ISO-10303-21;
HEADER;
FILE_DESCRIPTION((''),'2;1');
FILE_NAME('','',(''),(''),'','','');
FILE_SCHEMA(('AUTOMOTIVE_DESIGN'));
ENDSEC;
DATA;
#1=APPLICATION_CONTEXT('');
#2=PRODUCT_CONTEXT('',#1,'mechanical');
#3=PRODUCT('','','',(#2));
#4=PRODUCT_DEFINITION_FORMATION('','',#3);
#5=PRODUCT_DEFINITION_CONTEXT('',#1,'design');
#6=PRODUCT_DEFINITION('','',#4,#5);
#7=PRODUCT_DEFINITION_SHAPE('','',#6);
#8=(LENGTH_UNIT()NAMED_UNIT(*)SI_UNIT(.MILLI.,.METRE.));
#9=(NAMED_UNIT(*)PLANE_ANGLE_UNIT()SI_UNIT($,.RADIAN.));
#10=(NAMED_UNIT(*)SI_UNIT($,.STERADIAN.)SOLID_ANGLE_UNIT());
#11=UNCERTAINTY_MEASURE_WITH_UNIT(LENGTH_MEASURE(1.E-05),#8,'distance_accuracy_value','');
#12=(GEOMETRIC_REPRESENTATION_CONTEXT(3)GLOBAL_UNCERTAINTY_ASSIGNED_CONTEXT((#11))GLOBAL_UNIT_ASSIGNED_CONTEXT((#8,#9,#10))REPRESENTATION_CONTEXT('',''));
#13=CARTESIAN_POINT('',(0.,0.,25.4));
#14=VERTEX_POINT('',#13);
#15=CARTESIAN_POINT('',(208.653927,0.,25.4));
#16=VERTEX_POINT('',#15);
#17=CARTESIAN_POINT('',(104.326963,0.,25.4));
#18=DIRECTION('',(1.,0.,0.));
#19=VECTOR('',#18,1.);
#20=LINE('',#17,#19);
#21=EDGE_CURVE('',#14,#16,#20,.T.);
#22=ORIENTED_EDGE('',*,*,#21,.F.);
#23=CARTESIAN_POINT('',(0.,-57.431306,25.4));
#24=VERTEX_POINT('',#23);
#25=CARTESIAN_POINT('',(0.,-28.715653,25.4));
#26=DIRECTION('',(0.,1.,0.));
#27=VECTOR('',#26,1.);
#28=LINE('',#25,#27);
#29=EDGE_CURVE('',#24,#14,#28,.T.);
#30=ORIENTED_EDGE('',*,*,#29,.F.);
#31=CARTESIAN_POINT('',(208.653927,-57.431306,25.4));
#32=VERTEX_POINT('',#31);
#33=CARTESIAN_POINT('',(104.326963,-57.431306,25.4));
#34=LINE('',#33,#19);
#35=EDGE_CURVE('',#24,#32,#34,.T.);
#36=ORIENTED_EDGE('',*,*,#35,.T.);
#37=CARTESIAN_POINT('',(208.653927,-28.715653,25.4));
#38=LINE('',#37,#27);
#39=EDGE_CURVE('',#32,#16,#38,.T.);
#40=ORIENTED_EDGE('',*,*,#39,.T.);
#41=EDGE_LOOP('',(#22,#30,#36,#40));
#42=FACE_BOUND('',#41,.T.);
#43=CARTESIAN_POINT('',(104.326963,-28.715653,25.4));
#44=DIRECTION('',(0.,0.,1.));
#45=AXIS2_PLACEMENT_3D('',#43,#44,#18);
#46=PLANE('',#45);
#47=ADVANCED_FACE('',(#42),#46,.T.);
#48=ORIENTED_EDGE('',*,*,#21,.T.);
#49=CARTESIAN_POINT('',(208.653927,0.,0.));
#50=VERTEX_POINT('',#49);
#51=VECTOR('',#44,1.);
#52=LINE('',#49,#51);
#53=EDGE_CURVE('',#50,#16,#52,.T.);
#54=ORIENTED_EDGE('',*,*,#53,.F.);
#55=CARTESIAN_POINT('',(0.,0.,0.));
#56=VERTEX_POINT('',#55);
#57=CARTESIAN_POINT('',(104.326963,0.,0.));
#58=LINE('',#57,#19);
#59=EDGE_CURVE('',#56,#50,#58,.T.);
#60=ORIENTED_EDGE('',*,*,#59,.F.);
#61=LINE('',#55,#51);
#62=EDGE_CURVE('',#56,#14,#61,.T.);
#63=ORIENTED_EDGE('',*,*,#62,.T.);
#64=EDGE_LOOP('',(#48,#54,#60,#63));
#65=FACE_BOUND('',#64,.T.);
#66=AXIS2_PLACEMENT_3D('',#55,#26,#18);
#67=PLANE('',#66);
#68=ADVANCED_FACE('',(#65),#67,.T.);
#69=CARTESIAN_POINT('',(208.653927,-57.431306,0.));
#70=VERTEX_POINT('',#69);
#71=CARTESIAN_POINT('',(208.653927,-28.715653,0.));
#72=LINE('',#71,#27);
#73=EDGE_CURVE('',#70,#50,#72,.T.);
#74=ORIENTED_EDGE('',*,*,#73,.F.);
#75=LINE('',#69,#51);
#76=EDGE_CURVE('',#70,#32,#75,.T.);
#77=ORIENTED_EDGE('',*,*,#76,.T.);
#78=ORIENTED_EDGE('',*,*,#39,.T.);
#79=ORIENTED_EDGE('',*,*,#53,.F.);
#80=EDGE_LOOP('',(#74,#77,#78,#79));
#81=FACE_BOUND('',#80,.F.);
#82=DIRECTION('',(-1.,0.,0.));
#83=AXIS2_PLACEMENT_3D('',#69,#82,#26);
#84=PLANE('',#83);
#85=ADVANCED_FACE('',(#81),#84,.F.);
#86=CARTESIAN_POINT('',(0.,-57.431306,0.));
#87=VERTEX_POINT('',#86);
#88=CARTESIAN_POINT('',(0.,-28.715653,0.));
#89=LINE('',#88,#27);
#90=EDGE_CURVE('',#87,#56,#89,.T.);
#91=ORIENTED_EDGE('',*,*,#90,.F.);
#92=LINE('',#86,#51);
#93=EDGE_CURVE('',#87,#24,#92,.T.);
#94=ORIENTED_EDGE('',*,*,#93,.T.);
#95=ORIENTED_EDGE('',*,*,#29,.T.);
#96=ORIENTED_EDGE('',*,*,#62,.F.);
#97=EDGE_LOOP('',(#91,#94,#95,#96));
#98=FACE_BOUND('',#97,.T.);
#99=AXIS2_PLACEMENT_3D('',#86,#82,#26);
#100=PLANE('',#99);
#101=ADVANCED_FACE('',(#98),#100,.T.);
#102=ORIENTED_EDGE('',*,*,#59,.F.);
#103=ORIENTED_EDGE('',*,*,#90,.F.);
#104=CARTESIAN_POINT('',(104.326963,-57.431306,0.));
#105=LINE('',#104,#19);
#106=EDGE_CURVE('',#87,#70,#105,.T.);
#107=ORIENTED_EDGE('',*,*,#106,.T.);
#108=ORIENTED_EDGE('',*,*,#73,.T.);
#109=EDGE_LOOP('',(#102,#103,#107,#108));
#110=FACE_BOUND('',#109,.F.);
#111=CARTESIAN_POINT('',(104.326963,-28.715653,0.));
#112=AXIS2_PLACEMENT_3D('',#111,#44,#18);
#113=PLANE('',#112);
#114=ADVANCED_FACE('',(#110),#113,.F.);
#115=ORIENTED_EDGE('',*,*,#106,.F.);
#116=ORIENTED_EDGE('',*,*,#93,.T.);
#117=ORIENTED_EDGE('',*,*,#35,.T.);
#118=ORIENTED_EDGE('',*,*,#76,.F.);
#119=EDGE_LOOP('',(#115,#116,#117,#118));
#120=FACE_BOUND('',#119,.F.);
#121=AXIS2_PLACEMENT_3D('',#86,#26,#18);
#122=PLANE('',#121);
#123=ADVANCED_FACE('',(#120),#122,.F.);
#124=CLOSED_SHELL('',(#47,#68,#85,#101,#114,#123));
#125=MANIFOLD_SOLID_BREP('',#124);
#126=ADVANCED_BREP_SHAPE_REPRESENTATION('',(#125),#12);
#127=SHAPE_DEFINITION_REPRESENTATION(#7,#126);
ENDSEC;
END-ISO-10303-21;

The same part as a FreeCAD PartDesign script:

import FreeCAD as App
import Part
import Sketcher
from FreeCAD import Vector
Q = App.Units.Quantity


def add_polygon(sketch, points):
    """Adds a closed chain of lines whose ends are joined by coincident constraints."""
    first, n = sketch.GeometryCount, len(points)
    for a, b in zip(points, points[1:] + points[:1]):
        sketch.addGeometry(Part.LineSegment(App.Vector(*a, 0), App.Vector(*b, 0)), False)
    for i in range(n):
        sketch.addConstraint(Sketcher.Constraint("Coincident", first + i, 2, first + (i + 1) % n, 1))

doc = App.newDocument("Part")
body = doc.addObject("PartDesign::Body", "Body")

# Sketch on XY plane
sketch1 = body.newObject("Sketcher::SketchObject", "Sketch")
sketch1.AttachmentSupport = (doc.getObject("XY_Plane"), [""])
sketch1.MapMode = "FlatFace"
add_polygon(sketch1, [(0, 0), (0, -57), (209, -57), (209, 0)])  # lines 0-3
sketch1.addConstraint([
    Sketcher.Constraint("Vertical", 0),
    Sketcher.Constraint("Horizontal", 1),
    Sketcher.Constraint("Vertical", 2),
    Sketcher.Constraint("Horizontal", 3),
    Sketcher.Constraint("Coincident", 3, 2, -1, 1),
    Sketcher.Constraint("DistanceX", 1, 1, 1, 2, 208.653927),
    Sketcher.Constraint("DistanceY", 0, 2, 0, 1, 57.431307),
])
pad1 = body.newObject("PartDesign::Pad", "Pad")
pad1.Profile = sketch1
pad1.Length = Q("1 in")

doc.recompute()
